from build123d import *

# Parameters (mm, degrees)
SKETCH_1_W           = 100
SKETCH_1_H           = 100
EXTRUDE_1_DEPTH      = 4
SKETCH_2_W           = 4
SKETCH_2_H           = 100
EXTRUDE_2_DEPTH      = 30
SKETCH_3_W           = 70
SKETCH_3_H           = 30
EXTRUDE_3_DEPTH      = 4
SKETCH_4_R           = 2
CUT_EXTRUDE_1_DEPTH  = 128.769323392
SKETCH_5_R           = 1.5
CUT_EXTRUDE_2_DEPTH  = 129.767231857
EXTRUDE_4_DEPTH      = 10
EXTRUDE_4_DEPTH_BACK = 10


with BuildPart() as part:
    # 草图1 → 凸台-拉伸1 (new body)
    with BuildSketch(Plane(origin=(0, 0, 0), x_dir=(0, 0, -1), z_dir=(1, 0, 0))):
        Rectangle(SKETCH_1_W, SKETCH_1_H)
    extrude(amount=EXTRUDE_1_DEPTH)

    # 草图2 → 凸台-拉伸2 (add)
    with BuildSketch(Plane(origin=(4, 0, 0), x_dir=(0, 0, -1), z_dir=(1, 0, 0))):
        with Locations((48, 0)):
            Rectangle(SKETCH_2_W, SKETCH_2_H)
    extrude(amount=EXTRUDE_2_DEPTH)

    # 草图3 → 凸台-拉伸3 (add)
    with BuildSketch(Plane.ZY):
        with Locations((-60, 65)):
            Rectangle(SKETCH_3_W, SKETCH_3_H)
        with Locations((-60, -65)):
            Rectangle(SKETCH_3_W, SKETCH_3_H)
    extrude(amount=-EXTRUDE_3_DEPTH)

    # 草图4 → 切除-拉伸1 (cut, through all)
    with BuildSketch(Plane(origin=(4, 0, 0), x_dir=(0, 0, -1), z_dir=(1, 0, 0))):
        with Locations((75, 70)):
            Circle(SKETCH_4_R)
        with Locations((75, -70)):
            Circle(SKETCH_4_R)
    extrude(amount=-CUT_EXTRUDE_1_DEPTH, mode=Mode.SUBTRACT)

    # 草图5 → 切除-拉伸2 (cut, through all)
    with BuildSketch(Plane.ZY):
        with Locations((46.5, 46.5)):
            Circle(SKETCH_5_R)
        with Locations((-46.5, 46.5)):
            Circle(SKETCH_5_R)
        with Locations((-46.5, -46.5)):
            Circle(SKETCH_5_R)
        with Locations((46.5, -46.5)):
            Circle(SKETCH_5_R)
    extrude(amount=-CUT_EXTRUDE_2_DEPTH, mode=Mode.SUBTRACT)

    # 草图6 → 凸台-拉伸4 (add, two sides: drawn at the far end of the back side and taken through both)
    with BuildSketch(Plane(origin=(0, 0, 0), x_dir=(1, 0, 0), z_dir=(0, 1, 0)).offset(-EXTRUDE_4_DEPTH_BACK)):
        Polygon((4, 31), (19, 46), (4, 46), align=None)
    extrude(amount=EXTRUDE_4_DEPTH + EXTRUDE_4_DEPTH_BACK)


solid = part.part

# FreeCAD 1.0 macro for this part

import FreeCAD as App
import Part
import Sketcher

V = App.Vector


def add_polygon(sketch, points):
    """Adds a closed chain of lines whose ends are joined by coincident constraints."""
    first, n = sketch.GeometryCount, len(points)
    for a, b in zip(points, points[1:] + points[:1]):
        sketch.addGeometry(Part.LineSegment(App.Vector(*a, 0), App.Vector(*b, 0)), False)
    for i in range(n):
        sketch.addConstraint(Sketcher.Constraint("Coincident", first + i, 2, first + (i + 1) % n, 1))

doc = App.newDocument("Part")
body = doc.addObject("PartDesign::Body", "Body")

# Sketch on YZ plane
sketch1 = body.newObject("Sketcher::SketchObject", "Sketch")
sketch1.AttachmentSupport = (doc.getObject("YZ_Plane"), [""])
sketch1.MapMode = "FlatFace"
add_polygon(sketch1, [(50, 50), (-50, 50), (-50, -50), (50, -50)])  # lines 0-3
sketch1.addConstraint([
    Sketcher.Constraint("Horizontal", 0),
    Sketcher.Constraint("Vertical", 1),
    Sketcher.Constraint("Horizontal", 2),
    Sketcher.Constraint("Vertical", 3),
    Sketcher.Constraint("Symmetric", 0, 2, 2, 2, -1, 1),
    Sketcher.Constraint("Equal", 2, 1),
    Sketcher.Constraint("DistanceX", 0, 2, 0, 1, 100.0),
])
pad1 = body.newObject("PartDesign::Pad", "Pad")
pad1.Profile = sketch1
pad1.Length = 4

# Sketch on YZ plane
sketch2 = body.newObject("Sketcher::SketchObject", "Sketch001")
sketch2.AttachmentSupport = (doc.getObject("YZ_Plane"), [""])
sketch2.MapMode = "FlatFace"
sketch2.AttachmentOffset = App.Placement(V(0, 0, 4), App.Rotation())
add_polygon(sketch2, [(50, -46), (-50, -46), (-50, -50), (50, -50)])  # lines 0-3
sketch2.addConstraint([
    Sketcher.Constraint("Horizontal", 0),
    Sketcher.Constraint("Vertical", 1),
    Sketcher.Constraint("Horizontal", 2),
    Sketcher.Constraint("Vertical", 3),
    Sketcher.Constraint("DistanceX", 0, 2, 0, 1, 100.0),
    Sketcher.Constraint("DistanceY", 1, 2, 1, 1, 4.0),
    Sketcher.Constraint("DistanceX", 0, 2, -1, 1, 50.0),
    Sketcher.Constraint("DistanceY", 0, 2, -1, 1, 46.0),
])
pad2 = body.newObject("PartDesign::Pad", "Pad001")
pad2.Profile = sketch2
pad2.Length = 30

# Sketch on YZ plane
sketch3 = body.newObject("Sketcher::SketchObject", "Sketch002")
sketch3.AttachmentSupport = (doc.getObject("YZ_Plane"), [""])
sketch3.MapMode = "FlatFace"
add_polygon(sketch3, [(80, -95), (50, -95), (50, -25), (80, -25)])  # lines 0-3
add_polygon(sketch3, [(-50, -95), (-80, -95), (-80, -25), (-50, -25)])  # lines 4-7
sketch3.addConstraint([
    Sketcher.Constraint("Horizontal", 0),
    Sketcher.Constraint("Vertical", 1),
    Sketcher.Constraint("Horizontal", 2),
    Sketcher.Constraint("Vertical", 3),
    Sketcher.Constraint("Horizontal", 4),
    Sketcher.Constraint("Vertical", 5),
    Sketcher.Constraint("Horizontal", 6),
    Sketcher.Constraint("Vertical", 7),
    Sketcher.Constraint("Symmetric", 3, 2, 4, 2, -2),
    Sketcher.Constraint("Symmetric", 1, 2, 6, 2, -2),
    Sketcher.Constraint("DistanceX", 0, 2, 0, 1, 30.0),
    Sketcher.Constraint("DistanceY", 1, 1, 1, 2, 70.0),
    Sketcher.Constraint("DistanceX", -1, 1, 0, 2, 50.0),
    Sketcher.Constraint("DistanceY", 0, 2, -1, 1, 95.0),
])
pad3 = body.newObject("PartDesign::Pad", "Pad002")
pad3.Profile = sketch3
pad3.Length = 4

# Sketch on YZ plane
sketch4 = body.newObject("Sketcher::SketchObject", "Sketch003")
sketch4.AttachmentSupport = (doc.getObject("YZ_Plane"), [""])
sketch4.MapMode = "FlatFace"
sketch4.AttachmentOffset = App.Placement(V(0, 0, 4), App.Rotation())
sketch4.addGeometry([
    Part.Circle(V(70, -75, 0), V(0, 0, 1), 2),
    Part.Circle(V(-70, -75, 0), V(0, 0, 1), 2),
], False)
sketch4.addConstraint([
    Sketcher.Constraint("Equal", 0, 1),
    Sketcher.Constraint("Symmetric", 0, 3, 1, 3, -2),
    Sketcher.Constraint("Diameter", 0, 4.0),
    Sketcher.Constraint("DistanceX", -1, 1, 0, 3, 70.0),
    Sketcher.Constraint("DistanceY", 0, 3, -1, 1, 75.0),
])
pocket1 = body.newObject("PartDesign::Pocket", "Pocket")
pocket1.Profile = sketch4
pocket1.Type = "ThroughAll"

# Sketch on YZ plane
sketch5 = body.newObject("Sketcher::SketchObject", "Sketch004")
sketch5.AttachmentSupport = (doc.getObject("YZ_Plane"), [""])
sketch5.MapMode = "FlatFace"
sketch5.addGeometry([
    Part.Circle(V(46.5, 46.5, 0), V(0, 0, 1), 1.5),
    Part.Circle(V(46.5, -46.5, 0), V(0, 0, 1), 1.5),
    Part.Circle(V(-46.5, -46.5, 0), V(0, 0, 1), 1.5),
    Part.Circle(V(-46.5, 46.5, 0), V(0, 0, 1), 1.5),
], False)
sketch5.addConstraint([
    Sketcher.Constraint("Equal", 0, 1),
    Sketcher.Constraint("Equal", 1, 2),
    Sketcher.Constraint("Equal", 2, 3),
    Sketcher.Constraint("Symmetric", 0, 3, 2, 3, -1, 1),
    Sketcher.Constraint("Symmetric", 1, 3, 3, 3, -1, 1),
    Sketcher.Constraint("Symmetric", 1, 3, 2, 3, -2),
    Sketcher.Constraint("Diameter", 0, 3.0),
    Sketcher.Constraint("DistanceY", 1, 3, 0, 3, 93.0),
    Sketcher.Constraint("DistanceX", 2, 3, 1, 3, 93.0),
])
pocket2 = body.newObject("PartDesign::Pocket", "Pocket001")
pocket2.Profile = sketch5
pocket2.Type = "ThroughAll"
pocket2.Reversed = True

# Sketch on XZ plane
sketch6 = body.newObject("Sketcher::SketchObject", "Sketch005")
sketch6.AttachmentSupport = (doc.getObject("XZ_Plane"), [""])
sketch6.MapMode = "FlatFace"
add_polygon(sketch6, [(4, -31), (19, -46), (4, -46)])  # lines 0-2
sketch6.addConstraint([
    Sketcher.Constraint("Horizontal", 1),
    Sketcher.Constraint("Vertical", 2),
    Sketcher.Constraint("Equal", 1, 2),
    Sketcher.Constraint("DistanceX", 1, 2, 1, 1, 15.0),
    Sketcher.Constraint("DistanceX", -1, 1, 0, 2, 19.0),
    Sketcher.Constraint("DistanceY", 0, 2, -1, 1, 46.0),
])
pad4 = body.newObject("PartDesign::Pad", "Pad003")
pad4.Profile = sketch6
pad4.Type = "TwoLengths"
pad4.Length = 10
pad4.Length2 = 10
pad4.Reversed = True

doc.recompute()
